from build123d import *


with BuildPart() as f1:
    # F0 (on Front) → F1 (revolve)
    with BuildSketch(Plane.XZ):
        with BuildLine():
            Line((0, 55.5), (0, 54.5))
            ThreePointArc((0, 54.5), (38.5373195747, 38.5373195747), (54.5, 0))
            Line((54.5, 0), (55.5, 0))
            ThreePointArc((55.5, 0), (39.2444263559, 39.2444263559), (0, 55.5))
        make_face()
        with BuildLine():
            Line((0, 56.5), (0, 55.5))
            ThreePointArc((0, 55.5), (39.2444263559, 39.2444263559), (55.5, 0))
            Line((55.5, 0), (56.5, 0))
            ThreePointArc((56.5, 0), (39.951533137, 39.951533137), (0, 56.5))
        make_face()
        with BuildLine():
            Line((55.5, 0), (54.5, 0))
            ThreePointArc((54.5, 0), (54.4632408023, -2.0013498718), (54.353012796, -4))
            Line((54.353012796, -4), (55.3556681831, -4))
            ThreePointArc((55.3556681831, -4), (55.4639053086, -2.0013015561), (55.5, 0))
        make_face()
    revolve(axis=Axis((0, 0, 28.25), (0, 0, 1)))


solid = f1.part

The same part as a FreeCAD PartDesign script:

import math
import FreeCAD as App
import Part
import Sketcher

V = App.Vector

doc = App.newDocument("Part")
params = doc.addObject("Spreadsheet::Sheet", "Params")
for row, (alias, value) in enumerate([
    ("sketch1_radius", "54.5 mm"),
    ("sketch1_radius2", "55.5 mm"),
    ("sketch1_radius3", "56.5 mm"),
    ("revolution_angle", "360 deg"),
], start=1):
    params.set(f"A{row}", alias)
    params.set(f"B{row}", "=" + value)
    params.setAlias(f"B{row}", alias)

body = doc.addObject("PartDesign::Body", "Body")

# Sketch on XZ plane
sketch1 = doc.addObject("Sketcher::SketchObject", "Sketch")
body.addObject(sketch1)
sketch1.AttachmentSupport = (doc.XZ_Plane, [""])
sketch1.MapMode = "FlatFace"
sketch1.addGeometry(Part.ArcOfCircle(Part.Circle(V(0, 0, 0), V(0, 0, 1), 54.5), math.radians(0), math.radians(90)), False)
sketch1.addGeometry(Part.ArcOfCircle(Part.Circle(V(0, 0, 0), V(0, 0, 1), 54.5), math.radians(-4.208979), math.radians(0)), False)
sketch1.addGeometry(Part.LineSegment(V(54.353013, -4, 0), V(55.355668, -4, 0)), False)
sketch1.addGeometry(Part.ArcOfCircle(Part.Circle(V(0, 0, 0), V(0, 0, 1), 55.5), math.radians(-4.133009), math.radians(0)), False)
sketch1.addGeometry(Part.LineSegment(V(55.5, 0, 0), V(56.5, 0, 0)), False)
sketch1.addGeometry(Part.ArcOfCircle(Part.Circle(V(0, 0, 0), V(0, 0, 1), 56.5), math.radians(0), math.radians(90)), False)
sketch1.addGeometry(Part.LineSegment(V(0, 56.5, 0), V(0, 54.5, 0)), False)
sketch1.addConstraint(Sketcher.Constraint("Tangent", 0, 1, 1, 2))
sketch1.addConstraint(Sketcher.Constraint("Coincident", 1, 1, 2, 1))
sketch1.addConstraint(Sketcher.Constraint("Coincident", 2, 2, 3, 1))
sketch1.addConstraint(Sketcher.Constraint("Coincident", 3, 2, 4, 1))
sketch1.addConstraint(Sketcher.Constraint("Coincident", 4, 2, 5, 1))
sketch1.addConstraint(Sketcher.Constraint("Coincident", 5, 2, 6, 1))
sketch1.addConstraint(Sketcher.Constraint("Coincident", 6, 2, 0, 2))
sketch1.addConstraint(Sketcher.Constraint("Horizontal", 2))
sketch1.addConstraint(Sketcher.Constraint("Horizontal", 4))
sketch1.addConstraint(Sketcher.Constraint("Vertical", 6))
sketch1.addConstraint(Sketcher.Constraint("Coincident", 0, 3, -1, 1))
sketch1.addConstraint(Sketcher.Constraint("Coincident", 3, 3, -1, 1))
sketch1.addConstraint(Sketcher.Constraint("Coincident", 5, 3, -1, 1))
sketch1.addConstraint(Sketcher.Constraint("Equal", 0, 1))
sketch1.addConstraint(Sketcher.Constraint("PointOnObject", 0, 1, -1))
sketch1.addConstraint(Sketcher.Constraint("PointOnObject", 3, 2, -1))
sketch1.addConstraint(Sketcher.Constraint("PointOnObject", 5, 2, -2))
sketch1.addConstraint(Sketcher.Constraint("Radius", 0, 54.5))
sketch1.addConstraint(Sketcher.Constraint("Radius", 3, 55.5))
sketch1.addConstraint(Sketcher.Constraint("Radius", 5, 56.5))
sketch1.addConstraint(Sketcher.Constraint("DistanceY", 1, 1, -1, 1, 4.0))
sketch1.setExpression("Constraints[17]", "Params.sketch1_radius")
sketch1.setExpression("Constraints[18]", "Params.sketch1_radius2")
sketch1.setExpression("Constraints[19]", "Params.sketch1_radius3")
revolution = doc.addObject("PartDesign::Revolution", "Revolution")
body.addObject(revolution)
revolution.Profile = sketch1
revolution.ReferenceAxis = (sketch1, ["V_Axis"])
revolution.setExpression("Angle", "Params.revolution_angle")

doc.recompute()
